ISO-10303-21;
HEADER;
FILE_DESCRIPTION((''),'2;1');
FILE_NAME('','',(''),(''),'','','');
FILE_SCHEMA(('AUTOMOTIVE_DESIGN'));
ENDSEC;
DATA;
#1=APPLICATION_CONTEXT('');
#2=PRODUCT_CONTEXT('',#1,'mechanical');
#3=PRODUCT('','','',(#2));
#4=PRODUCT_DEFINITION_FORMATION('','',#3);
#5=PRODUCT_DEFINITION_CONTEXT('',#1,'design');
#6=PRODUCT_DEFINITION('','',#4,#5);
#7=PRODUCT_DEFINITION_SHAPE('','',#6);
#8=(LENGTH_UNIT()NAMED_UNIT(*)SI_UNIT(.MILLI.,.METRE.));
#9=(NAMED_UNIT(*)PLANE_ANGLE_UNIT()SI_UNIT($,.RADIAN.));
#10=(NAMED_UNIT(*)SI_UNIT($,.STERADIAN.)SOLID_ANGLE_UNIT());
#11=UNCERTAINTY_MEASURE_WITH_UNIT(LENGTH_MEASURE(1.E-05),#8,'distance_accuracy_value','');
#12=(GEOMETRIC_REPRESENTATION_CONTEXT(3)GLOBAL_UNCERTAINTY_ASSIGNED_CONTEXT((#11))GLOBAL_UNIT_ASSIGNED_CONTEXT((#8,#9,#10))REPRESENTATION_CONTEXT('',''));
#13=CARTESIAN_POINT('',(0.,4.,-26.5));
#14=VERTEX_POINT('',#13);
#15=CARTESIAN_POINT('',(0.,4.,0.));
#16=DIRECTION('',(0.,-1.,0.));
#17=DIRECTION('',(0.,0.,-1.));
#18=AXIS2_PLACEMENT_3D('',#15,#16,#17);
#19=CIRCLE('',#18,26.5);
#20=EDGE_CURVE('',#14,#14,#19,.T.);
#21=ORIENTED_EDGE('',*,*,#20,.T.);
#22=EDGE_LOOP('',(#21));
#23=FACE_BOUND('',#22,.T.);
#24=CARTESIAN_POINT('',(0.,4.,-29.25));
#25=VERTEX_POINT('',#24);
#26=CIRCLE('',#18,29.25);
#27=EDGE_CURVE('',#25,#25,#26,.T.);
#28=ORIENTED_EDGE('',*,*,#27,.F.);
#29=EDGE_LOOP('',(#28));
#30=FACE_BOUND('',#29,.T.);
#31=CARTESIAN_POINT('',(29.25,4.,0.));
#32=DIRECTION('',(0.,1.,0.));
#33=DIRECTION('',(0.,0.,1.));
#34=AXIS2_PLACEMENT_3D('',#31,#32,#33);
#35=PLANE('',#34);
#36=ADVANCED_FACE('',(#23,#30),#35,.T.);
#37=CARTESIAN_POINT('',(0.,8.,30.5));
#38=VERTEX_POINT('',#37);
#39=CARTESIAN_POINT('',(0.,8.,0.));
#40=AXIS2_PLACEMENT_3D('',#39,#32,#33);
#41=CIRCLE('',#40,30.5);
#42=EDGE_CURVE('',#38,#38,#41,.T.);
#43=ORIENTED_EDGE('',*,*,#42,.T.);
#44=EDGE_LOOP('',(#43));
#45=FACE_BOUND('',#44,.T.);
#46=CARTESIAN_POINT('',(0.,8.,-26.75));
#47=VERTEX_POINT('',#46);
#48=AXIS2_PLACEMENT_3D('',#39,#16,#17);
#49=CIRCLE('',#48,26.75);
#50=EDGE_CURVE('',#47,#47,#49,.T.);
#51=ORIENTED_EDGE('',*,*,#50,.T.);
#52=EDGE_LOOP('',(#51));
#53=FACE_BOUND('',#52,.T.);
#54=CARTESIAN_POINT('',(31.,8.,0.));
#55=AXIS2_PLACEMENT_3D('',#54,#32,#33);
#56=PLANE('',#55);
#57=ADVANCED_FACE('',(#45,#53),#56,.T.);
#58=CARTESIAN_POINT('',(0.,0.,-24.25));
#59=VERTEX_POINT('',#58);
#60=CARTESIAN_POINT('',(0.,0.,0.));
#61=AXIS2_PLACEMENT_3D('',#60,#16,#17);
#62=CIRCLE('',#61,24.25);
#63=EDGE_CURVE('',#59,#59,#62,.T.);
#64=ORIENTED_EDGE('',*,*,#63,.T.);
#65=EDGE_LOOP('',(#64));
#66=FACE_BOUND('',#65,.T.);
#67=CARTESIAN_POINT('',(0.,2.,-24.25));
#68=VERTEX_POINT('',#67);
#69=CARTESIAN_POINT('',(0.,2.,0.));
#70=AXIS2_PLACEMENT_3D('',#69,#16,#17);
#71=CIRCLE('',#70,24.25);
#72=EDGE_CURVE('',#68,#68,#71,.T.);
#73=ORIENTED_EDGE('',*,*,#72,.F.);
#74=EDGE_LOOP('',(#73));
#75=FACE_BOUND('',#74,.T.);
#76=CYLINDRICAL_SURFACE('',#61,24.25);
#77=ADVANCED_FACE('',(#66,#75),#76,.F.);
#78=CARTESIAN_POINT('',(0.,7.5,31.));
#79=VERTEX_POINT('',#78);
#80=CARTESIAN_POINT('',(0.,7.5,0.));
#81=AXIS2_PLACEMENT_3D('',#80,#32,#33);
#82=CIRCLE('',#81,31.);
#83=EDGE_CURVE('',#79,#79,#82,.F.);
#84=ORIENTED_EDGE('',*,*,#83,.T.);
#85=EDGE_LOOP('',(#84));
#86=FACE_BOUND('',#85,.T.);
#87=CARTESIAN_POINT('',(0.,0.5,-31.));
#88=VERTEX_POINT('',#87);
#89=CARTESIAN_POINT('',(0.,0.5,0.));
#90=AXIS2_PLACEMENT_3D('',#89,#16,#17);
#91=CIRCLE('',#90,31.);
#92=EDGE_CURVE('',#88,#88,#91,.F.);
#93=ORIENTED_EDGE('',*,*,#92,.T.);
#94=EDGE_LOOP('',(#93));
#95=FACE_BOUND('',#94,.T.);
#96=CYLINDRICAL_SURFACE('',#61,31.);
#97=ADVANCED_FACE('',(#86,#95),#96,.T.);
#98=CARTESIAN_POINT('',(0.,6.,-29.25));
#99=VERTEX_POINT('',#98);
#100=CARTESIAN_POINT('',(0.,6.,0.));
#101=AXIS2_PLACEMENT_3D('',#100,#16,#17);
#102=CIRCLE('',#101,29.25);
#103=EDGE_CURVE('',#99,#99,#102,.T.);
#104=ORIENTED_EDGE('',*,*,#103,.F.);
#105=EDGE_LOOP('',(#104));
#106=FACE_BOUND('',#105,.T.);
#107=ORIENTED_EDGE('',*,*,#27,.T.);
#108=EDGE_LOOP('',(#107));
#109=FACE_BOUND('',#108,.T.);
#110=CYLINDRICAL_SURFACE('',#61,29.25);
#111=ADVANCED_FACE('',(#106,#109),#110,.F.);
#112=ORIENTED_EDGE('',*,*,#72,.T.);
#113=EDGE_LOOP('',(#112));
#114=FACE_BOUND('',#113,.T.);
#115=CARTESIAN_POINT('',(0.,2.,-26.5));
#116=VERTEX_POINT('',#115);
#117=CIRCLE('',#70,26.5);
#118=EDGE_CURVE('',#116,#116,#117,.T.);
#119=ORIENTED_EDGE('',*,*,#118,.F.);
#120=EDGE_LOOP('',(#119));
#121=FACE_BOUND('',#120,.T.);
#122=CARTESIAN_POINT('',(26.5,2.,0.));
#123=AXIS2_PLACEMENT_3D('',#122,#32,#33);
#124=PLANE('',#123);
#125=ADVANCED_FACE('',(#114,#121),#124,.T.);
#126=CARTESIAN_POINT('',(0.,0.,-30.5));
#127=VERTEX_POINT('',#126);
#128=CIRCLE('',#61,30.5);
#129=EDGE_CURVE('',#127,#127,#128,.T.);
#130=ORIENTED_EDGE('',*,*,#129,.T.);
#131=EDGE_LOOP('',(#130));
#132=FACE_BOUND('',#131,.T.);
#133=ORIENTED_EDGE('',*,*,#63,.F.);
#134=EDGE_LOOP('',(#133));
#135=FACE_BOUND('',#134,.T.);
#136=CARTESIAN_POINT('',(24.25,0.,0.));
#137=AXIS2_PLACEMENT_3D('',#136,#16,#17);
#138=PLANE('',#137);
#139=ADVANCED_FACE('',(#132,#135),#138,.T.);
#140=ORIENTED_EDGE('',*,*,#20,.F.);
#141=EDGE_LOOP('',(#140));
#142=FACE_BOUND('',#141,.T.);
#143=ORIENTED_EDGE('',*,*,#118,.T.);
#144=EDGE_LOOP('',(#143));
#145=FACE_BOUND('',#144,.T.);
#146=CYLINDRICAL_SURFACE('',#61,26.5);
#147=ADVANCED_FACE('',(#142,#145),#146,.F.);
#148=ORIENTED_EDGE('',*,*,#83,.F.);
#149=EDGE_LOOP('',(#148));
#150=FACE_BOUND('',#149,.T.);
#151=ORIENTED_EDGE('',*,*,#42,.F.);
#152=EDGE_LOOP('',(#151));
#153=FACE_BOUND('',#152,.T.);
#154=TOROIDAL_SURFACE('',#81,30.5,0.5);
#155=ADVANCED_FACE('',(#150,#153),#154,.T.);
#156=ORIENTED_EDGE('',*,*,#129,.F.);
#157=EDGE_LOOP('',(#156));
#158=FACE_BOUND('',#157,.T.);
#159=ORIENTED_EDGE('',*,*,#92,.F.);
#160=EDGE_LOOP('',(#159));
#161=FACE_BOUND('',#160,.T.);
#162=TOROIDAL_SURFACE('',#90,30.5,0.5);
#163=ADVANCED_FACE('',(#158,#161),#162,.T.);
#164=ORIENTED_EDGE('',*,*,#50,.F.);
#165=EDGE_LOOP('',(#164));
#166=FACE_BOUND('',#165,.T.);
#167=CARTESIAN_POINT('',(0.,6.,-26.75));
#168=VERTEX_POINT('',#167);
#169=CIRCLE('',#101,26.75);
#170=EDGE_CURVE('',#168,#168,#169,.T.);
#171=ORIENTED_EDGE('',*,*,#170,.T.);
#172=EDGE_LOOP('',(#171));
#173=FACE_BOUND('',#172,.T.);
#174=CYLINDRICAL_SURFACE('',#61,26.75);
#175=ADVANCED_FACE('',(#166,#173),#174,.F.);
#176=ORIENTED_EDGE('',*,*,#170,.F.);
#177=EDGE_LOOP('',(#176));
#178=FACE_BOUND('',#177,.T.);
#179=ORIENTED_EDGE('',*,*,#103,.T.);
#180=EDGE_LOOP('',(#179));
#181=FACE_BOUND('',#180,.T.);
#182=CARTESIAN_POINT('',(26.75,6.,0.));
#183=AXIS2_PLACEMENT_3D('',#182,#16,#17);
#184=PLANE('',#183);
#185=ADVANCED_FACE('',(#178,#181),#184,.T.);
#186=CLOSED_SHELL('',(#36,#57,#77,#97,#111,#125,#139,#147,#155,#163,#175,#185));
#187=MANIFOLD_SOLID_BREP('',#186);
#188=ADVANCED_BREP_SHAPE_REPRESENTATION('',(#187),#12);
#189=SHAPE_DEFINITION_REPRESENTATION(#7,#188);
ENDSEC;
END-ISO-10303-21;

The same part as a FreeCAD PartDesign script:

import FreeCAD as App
import Part
import Sketcher


def edges_at(feature, points):
    """Names of the edges that pass closest to the given points."""
    edges = feature.Shape.Edges
    near = lambda p: min(range(len(edges)), key=lambda i: edges[i].distToShape(Part.Vertex(*p))[0])
    return sorted({f"Edge{near(p) + 1}" for p in points})


def add_polygon(sketch, points):
    """Adds a closed chain of lines whose ends are joined by coincident constraints."""
    first, n = sketch.GeometryCount, len(points)
    for a, b in zip(points, points[1:] + points[:1]):
        sketch.addGeometry(Part.LineSegment(App.Vector(*a, 0), App.Vector(*b, 0)), False)
    for i in range(n):
        sketch.addConstraint(Sketcher.Constraint("Coincident", first + i, 2, first + (i + 1) % n, 1))

doc = App.newDocument("Part")
body = doc.addObject("PartDesign::Body", "Body")

sketch1 = body.newObject("Sketcher::SketchObject", "Sketch")
sketch1.AttachmentSupport = (doc.getObject("XY_Plane"), [""])
sketch1.MapMode = "FlatFace"
add_polygon(sketch1, [(24.2, 0), (31, 0), (31, 8), (26.8, 8), (26.8, 6), (29.2, 6), (29.2, 4), (26.5, 4), (26.5, 2), (24.2, 2)])
sketch1.addConstraint([
    Sketcher.Constraint("Horizontal", 0),
    Sketcher.Constraint("Vertical", 1),
    Sketcher.Constraint("Horizontal", 2),
    Sketcher.Constraint("Vertical", 3),
    Sketcher.Constraint("Horizontal", 4),
    Sketcher.Constraint("Vertical", 5),
    Sketcher.Constraint("Horizontal", 6),
    Sketcher.Constraint("Vertical", 7),
    Sketcher.Constraint("Horizontal", 8),
    Sketcher.Constraint("Vertical", 9),
    Sketcher.Constraint("PointOnObject", 0, 2, -1),
    Sketcher.Constraint("Equal", 3, 5),
    Sketcher.Constraint("Equal", 5, 7),
    Sketcher.Constraint("Equal", 7, 9),
    Sketcher.Constraint("DistanceY", 1, 1, 1, 2, 8.0),
    Sketcher.Constraint("DistanceX", 4, 1, 4, 2, 2.5),
    Sketcher.Constraint("DistanceX", -1, 1, 0, 2, 31.0),
    Sketcher.Constraint("DistanceX", 8, 2, 5, 2, 5.0),
    Sketcher.Constraint("DistanceX", 0, 1, 0, 2, 6.75),
    Sketcher.Constraint("DistanceX", 6, 2, 6, 1, 2.75),
])
revolution = body.newObject("PartDesign::Revolution", "Revolution")
revolution.Profile = sketch1
revolution.ReferenceAxis = (sketch1, ["V_Axis"])
revolution.Angle = 360
doc.recompute()

fillet = body.newObject("PartDesign::Fillet", "Fillet")
fillet.Base = (revolution, edges_at(revolution, [(-31, 8, 0), (-31, 0, 0)]))
fillet.Radius = 0.5

doc.recompute()
